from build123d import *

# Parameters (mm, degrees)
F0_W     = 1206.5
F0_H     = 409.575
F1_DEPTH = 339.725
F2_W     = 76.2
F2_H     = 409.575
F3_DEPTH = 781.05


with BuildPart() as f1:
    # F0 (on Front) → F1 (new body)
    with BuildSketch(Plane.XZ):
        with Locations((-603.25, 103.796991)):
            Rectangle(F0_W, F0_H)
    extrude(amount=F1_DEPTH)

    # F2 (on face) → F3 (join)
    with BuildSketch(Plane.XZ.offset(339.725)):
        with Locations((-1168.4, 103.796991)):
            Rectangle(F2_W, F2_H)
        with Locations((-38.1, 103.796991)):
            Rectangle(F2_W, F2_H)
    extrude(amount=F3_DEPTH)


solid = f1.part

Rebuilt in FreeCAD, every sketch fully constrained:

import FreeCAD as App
import Part
import Sketcher
from FreeCAD import Vector
Q = App.Units.Quantity


def add_polygon(sketch, points):
    """Adds a closed chain of lines whose ends are joined by coincident constraints."""
    first, n = sketch.GeometryCount, len(points)
    for a, b in zip(points, points[1:] + points[:1]):
        sketch.addGeometry(Part.LineSegment(App.Vector(*a, 0), App.Vector(*b, 0)), False)
    for i in range(n):
        sketch.addConstraint(Sketcher.Constraint("Coincident", first + i, 2, first + (i + 1) % n, 1))

doc = App.newDocument("Part")
body = doc.addObject("PartDesign::Body", "Body")

sketch1 = body.newObject("Sketcher::SketchObject", "Sketch")
sketch1.AttachmentSupport = (doc.getObject("XZ_Plane"), [""])
sketch1.MapMode = "FlatFace"
add_polygon(sketch1, [(-1206, 309), (-1206, -101), (0, -101), (0, 309)])
sketch1.addConstraint([
    Sketcher.Constraint("Vertical", 0),
    Sketcher.Constraint("Horizontal", 1),
    Sketcher.Constraint("Vertical", 2),
    Sketcher.Constraint("Horizontal", 3),
    Sketcher.Constraint("PointOnObject", 1, 2, -2),
    Sketcher.Constraint("DistanceX", 1, 1, 1, 2, Q("47.5 in")),
    Sketcher.Constraint("DistanceY", 0, 2, 0, 1, Q("16.125 in")),
    Sketcher.Constraint("DistanceY", 0, 2, -1, 1, 100.990509),
])
pad1 = body.newObject("PartDesign::Pad", "Pad")
pad1.Profile = sketch1
pad1.Length = Q("13.375 in")

sketch2 = body.newObject("Sketcher::SketchObject", "Sketch001")
sketch2.AttachmentSupport = (doc.getObject("XZ_Plane"), [""])
sketch2.MapMode = "FlatFace"
sketch2.AttachmentOffset = App.Placement(Vector(0, 0, 13.375 * 25.4), App.Rotation())
add_polygon(sketch2, [(-1206, 309), (-1206, -101), (-1130, -101), (-1130, 309)])
add_polygon(sketch2, [(-76, 309), (-76, -101), (0, -101), (0, 309)])
sketch2.addConstraint([
    Sketcher.Constraint("Vertical", 0),
    Sketcher.Constraint("Horizontal", 1),
    Sketcher.Constraint("Vertical", 2),
    Sketcher.Constraint("Horizontal", 3),
    Sketcher.Constraint("Vertical", 4),
    Sketcher.Constraint("Horizontal", 5),
    Sketcher.Constraint("Vertical", 6),
    Sketcher.Constraint("Horizontal", 7),
    Sketcher.Constraint("PointOnObject", 5, 2, -2),
    Sketcher.Constraint("Horizontal", 1, 2, 4, 2),
    Sketcher.Constraint("Horizontal", 3, 2, 6, 2),
    Sketcher.Constraint("Equal", 3, 5),
    Sketcher.Constraint("DistanceX", 1, 1, 1, 2, Q("3 in")),
    Sketcher.Constraint("DistanceX", 0, 2, -1, 1, Q("47.5 in")),
    Sketcher.Constraint("DistanceY", 0, 2, 0, 1, Q("16.125 in")),
    Sketcher.Constraint("DistanceY", 0, 2, -1, 1, 100.990509),
])
pad2 = body.newObject("PartDesign::Pad", "Pad001")
pad2.Profile = sketch2
pad2.Length = Q("30.75 in")

doc.recompute()
